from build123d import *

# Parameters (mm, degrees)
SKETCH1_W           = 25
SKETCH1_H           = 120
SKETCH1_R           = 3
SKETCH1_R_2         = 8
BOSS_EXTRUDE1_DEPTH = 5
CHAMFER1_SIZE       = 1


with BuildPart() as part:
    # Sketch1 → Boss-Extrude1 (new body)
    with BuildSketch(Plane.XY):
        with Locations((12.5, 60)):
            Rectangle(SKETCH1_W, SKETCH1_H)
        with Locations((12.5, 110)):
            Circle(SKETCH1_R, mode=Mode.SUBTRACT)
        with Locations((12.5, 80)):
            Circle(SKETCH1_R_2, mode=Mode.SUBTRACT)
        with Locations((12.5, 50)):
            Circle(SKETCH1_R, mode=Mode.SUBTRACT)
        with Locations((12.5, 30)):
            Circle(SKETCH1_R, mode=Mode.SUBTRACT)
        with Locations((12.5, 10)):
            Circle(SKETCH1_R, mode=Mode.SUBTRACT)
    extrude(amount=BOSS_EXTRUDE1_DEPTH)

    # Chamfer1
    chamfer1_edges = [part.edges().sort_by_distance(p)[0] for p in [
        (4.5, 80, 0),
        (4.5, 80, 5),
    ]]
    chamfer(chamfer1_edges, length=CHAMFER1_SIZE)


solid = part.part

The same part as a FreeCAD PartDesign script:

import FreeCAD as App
import Part
import Sketcher
from FreeCAD import Vector


def edges_at(feature, points):
    """Names of the edges that pass closest to the given points."""
    edges = feature.Shape.Edges
    near = lambda p: min(range(len(edges)), key=lambda i: edges[i].distToShape(Part.Vertex(*p))[0])
    return sorted({f"Edge{near(p) + 1}" for p in points})

doc = App.newDocument("Part")
body = doc.addObject("PartDesign::Body", "Body")

# Sketch on XY plane
sketch1 = body.newObject("Sketcher::SketchObject", "Sketch")
sketch1.AttachmentSupport = (doc.getObject("XY_Plane"), [""])
sketch1.MapMode = "FlatFace"
sketch1.addGeometry(Part.LineSegment(Vector(0, 120, 0), Vector(0, 0, 0)), False)
sketch1.addGeometry(Part.LineSegment(Vector(0, 0, 0), Vector(25, 0, 0)), False)
sketch1.addGeometry(Part.LineSegment(Vector(25, 0, 0), Vector(25, 120, 0)), False)
sketch1.addGeometry(Part.LineSegment(Vector(25, 120, 0), Vector(0, 120, 0)), False)
sketch1.addGeometry(Part.Circle(Vector(12.5, 10, 0), Vector(0, 0, 1), 3), False)
sketch1.addGeometry(Part.Circle(Vector(12.5, 30, 0), Vector(0, 0, 1), 3), False)
sketch1.addGeometry(Part.Circle(Vector(12.5, 50, 0), Vector(0, 0, 1), 3), False)
sketch1.addGeometry(Part.Circle(Vector(12.5, 80, 0), Vector(0, 0, 1), 8), False)
sketch1.addGeometry(Part.Circle(Vector(12.5, 110, 0), Vector(0, 0, 1), 3), False)
sketch1.addConstraint(Sketcher.Constraint("Coincident", 0, 2, 1, 1))
sketch1.addConstraint(Sketcher.Constraint("Coincident", 1, 2, 2, 1))
sketch1.addConstraint(Sketcher.Constraint("Coincident", 2, 2, 3, 1))
sketch1.addConstraint(Sketcher.Constraint("Coincident", 3, 2, 0, 1))
sketch1.addConstraint(Sketcher.Constraint("Vertical", 0))
sketch1.addConstraint(Sketcher.Constraint("Horizontal", 1))
sketch1.addConstraint(Sketcher.Constraint("Vertical", 2))
sketch1.addConstraint(Sketcher.Constraint("Horizontal", 3))
sketch1.addConstraint(Sketcher.Constraint("Coincident", 0, 2, -1, 1))
sketch1.addConstraint(Sketcher.Constraint("Equal", 4, 5))
sketch1.addConstraint(Sketcher.Constraint("Equal", 5, 6))
sketch1.addConstraint(Sketcher.Constraint("Equal", 6, 8))
sketch1.addConstraint(Sketcher.Constraint("Vertical", 4, 3, 5, 3))
sketch1.addConstraint(Sketcher.Constraint("Vertical", 5, 3, 6, 3))
sketch1.addConstraint(Sketcher.Constraint("Vertical", 6, 3, 7, 3))
sketch1.addConstraint(Sketcher.Constraint("Vertical", 7, 3, 8, 3))
sketch1.addConstraint(Sketcher.Constraint("Diameter", 4, 6.0))
sketch1.addConstraint(Sketcher.Constraint("Diameter", 7, 16.0))
sketch1.addConstraint(Sketcher.Constraint("DistanceX", 1, 1, 1, 2, 25.0))
sketch1.addConstraint(Sketcher.Constraint("DistanceY", 0, 2, 0, 1, 120.0))
sketch1.addConstraint(Sketcher.Constraint("DistanceY", -1, 1, 4, 3, 10.0))
sketch1.addConstraint(Sketcher.Constraint("DistanceY", -1, 1, 5, 3, 30.0))
sketch1.addConstraint(Sketcher.Constraint("DistanceY", -1, 1, 6, 3, 50.0))
sketch1.addConstraint(Sketcher.Constraint("DistanceY", -1, 1, 7, 3, 80.0))
sketch1.addConstraint(Sketcher.Constraint("DistanceY", -1, 1, 8, 3, 110.0))
sketch1.addConstraint(Sketcher.Constraint("DistanceX", -1, 1, 4, 3, 12.5))
pad1 = body.newObject("PartDesign::Pad", "Pad")
pad1.Profile = sketch1
pad1.Length = 5
doc.recompute()

chamfer = body.newObject("PartDesign::Chamfer", "Chamfer")
chamfer.Base = (pad1, edges_at(pad1, [(4.5, 80, 0), (4.5, 80, 5)]))
chamfer.Size = 1

doc.recompute()
